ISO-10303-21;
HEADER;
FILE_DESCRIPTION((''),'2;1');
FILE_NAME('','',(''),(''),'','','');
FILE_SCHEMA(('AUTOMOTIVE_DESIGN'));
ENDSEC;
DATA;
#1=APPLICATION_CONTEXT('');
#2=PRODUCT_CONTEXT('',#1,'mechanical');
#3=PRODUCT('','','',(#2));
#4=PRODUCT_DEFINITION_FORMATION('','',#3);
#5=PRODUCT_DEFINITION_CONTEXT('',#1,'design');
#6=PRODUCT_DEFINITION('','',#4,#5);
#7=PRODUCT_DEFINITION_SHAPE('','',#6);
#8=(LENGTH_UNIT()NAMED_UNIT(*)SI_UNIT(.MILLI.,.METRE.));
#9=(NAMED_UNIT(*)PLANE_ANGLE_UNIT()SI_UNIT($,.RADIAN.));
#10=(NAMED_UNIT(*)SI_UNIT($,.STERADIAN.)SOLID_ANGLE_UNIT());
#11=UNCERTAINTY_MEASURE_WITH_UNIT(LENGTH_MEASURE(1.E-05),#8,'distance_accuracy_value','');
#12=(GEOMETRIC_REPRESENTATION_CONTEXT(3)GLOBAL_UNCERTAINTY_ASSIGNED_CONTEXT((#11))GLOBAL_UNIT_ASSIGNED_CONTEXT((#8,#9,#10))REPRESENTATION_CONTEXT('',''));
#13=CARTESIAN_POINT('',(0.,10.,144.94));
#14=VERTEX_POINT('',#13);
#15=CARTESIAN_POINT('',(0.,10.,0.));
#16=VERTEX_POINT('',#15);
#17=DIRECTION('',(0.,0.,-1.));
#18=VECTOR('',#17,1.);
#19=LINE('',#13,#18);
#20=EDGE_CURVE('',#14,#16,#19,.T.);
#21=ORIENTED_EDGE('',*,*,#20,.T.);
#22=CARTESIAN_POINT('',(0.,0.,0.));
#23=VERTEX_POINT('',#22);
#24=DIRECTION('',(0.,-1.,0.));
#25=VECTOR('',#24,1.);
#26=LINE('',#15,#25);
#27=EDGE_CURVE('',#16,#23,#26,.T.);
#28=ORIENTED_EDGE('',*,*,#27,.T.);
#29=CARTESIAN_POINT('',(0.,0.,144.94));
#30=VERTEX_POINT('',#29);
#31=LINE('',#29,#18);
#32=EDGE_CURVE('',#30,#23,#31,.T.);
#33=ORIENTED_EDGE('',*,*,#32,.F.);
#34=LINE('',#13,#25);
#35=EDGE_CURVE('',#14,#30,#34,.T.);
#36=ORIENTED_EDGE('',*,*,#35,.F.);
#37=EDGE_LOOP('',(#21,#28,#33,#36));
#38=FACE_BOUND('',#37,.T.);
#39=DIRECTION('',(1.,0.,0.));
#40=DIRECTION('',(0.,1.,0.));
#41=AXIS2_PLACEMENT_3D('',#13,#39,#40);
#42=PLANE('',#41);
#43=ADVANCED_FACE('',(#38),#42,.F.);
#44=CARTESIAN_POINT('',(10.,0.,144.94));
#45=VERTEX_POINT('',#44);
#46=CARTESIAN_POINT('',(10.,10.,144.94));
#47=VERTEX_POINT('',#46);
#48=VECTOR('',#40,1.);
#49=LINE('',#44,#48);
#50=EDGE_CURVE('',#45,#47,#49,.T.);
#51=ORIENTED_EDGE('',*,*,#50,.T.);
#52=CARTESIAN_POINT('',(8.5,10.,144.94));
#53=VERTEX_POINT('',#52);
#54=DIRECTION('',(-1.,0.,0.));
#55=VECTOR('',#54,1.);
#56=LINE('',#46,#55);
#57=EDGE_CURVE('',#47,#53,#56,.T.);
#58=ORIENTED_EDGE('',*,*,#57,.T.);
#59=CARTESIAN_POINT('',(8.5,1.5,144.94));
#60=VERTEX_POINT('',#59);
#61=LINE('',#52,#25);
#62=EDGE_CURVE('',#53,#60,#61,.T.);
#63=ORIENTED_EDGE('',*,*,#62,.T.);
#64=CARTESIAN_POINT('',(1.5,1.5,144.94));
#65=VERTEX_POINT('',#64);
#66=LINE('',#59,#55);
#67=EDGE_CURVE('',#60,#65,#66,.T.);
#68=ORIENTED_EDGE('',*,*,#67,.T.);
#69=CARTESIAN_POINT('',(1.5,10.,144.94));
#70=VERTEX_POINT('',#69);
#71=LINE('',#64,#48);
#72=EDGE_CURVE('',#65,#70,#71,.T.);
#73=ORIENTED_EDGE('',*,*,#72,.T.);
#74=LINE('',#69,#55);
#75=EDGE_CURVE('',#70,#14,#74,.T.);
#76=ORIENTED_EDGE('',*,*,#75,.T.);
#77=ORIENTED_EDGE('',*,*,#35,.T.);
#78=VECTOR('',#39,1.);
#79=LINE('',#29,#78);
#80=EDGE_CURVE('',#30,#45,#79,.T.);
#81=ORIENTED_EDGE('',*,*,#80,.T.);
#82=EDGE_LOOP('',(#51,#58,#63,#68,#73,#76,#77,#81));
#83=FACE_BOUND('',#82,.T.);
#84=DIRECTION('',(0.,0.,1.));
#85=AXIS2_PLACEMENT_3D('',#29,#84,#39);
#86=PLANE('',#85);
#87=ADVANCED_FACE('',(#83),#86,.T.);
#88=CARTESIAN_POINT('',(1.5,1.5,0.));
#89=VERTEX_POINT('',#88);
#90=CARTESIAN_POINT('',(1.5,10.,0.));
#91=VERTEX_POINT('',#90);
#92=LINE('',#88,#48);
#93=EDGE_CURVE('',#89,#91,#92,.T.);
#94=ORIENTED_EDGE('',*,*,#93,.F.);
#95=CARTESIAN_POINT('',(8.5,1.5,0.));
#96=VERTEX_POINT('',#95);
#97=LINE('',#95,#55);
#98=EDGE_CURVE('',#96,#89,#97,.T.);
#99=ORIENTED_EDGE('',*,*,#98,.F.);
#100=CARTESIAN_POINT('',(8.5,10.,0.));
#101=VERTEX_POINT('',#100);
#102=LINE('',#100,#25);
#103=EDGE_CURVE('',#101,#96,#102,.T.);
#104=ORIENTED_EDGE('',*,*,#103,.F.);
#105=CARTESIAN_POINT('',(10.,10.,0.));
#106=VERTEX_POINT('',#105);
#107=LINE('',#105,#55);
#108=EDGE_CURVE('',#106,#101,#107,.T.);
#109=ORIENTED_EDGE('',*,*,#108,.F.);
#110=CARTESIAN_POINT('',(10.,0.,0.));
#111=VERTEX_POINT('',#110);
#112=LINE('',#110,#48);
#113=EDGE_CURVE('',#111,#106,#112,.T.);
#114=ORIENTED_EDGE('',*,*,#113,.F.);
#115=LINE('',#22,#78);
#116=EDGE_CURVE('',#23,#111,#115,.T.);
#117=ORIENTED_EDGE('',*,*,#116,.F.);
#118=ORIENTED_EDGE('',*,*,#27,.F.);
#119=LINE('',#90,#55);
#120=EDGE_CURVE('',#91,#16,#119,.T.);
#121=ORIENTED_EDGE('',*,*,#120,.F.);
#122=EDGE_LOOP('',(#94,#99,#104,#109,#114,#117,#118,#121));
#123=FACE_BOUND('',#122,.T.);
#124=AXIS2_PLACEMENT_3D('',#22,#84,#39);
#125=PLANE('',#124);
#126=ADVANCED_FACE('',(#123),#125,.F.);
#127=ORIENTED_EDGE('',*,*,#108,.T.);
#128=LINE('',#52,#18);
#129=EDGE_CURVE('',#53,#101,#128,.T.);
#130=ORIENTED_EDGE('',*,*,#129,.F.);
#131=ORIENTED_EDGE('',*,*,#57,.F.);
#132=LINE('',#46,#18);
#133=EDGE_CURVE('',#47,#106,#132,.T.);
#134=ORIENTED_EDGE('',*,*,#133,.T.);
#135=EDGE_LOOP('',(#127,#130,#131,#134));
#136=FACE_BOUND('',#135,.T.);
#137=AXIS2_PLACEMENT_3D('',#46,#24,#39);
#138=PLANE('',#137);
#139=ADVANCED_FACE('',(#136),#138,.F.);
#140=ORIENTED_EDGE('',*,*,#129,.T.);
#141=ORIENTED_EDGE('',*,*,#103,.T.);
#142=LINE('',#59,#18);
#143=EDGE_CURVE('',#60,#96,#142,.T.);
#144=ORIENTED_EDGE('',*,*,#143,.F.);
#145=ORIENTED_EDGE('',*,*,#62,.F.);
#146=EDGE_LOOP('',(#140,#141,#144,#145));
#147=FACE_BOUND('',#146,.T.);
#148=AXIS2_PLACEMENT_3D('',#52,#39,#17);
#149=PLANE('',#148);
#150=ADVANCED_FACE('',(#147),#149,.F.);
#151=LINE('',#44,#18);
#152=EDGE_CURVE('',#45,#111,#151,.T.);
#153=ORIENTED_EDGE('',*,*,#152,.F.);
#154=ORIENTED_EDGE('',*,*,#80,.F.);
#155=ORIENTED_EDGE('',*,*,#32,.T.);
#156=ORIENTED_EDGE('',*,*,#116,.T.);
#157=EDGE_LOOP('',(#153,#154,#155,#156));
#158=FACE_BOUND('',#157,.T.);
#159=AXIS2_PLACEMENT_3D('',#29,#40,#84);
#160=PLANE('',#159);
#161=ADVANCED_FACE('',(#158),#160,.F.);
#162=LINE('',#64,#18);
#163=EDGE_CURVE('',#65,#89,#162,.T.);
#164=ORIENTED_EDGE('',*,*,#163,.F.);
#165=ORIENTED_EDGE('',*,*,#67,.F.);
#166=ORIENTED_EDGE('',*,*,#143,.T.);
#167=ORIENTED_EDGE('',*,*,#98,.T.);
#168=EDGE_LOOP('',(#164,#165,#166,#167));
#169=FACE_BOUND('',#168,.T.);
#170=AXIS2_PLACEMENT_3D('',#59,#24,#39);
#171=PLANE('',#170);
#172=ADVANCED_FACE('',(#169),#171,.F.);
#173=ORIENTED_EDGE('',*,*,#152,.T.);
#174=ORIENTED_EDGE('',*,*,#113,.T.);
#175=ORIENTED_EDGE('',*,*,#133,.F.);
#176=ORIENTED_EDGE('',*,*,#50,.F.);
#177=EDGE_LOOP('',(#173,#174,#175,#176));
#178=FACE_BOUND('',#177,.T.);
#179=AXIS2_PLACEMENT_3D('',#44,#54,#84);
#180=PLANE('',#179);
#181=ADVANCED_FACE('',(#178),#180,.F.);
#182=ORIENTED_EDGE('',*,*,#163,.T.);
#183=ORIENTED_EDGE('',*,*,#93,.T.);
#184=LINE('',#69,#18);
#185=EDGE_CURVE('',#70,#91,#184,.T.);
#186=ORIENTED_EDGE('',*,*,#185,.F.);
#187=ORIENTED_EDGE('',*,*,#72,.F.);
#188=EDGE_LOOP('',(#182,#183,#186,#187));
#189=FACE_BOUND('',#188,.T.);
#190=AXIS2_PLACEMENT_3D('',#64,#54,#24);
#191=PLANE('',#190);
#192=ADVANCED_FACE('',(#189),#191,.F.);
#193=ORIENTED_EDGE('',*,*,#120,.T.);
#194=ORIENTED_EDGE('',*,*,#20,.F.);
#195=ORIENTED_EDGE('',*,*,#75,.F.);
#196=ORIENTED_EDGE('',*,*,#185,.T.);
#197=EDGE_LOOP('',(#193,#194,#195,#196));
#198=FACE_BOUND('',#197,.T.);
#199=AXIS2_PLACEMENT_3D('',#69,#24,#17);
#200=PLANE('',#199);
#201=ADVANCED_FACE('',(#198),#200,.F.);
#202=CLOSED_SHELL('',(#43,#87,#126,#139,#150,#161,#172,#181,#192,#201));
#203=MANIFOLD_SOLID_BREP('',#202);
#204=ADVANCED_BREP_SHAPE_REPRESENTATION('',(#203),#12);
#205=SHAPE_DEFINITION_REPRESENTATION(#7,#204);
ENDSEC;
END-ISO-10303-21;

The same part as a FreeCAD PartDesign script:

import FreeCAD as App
import Part
import Sketcher


def add_polygon(sketch, points):
    """Adds a closed chain of lines whose ends are joined by coincident constraints."""
    first, n = sketch.GeometryCount, len(points)
    for a, b in zip(points, points[1:] + points[:1]):
        sketch.addGeometry(Part.LineSegment(App.Vector(*a, 0), App.Vector(*b, 0)), False)
    for i in range(n):
        sketch.addConstraint(Sketcher.Constraint("Coincident", first + i, 2, first + (i + 1) % n, 1))

doc = App.newDocument("Part")
params = doc.addObject("Spreadsheet::Sheet", "Params")
for row, (alias, value) in enumerate([
    ("sketch1_width", "10 mm"),
    ("sketch1_width2", "7 mm"),
    ("sketch1_height", "8.5 mm"),
    ("pad1_length", "144.94 mm"),
], start=1):
    params.set(f"A{row}", alias)
    params.set(f"B{row}", "=" + value)
    params.setAlias(f"B{row}", alias)

body = doc.addObject("PartDesign::Body", "Body")

# Sketch on XY plane
sketch1 = body.newObject("Sketcher::SketchObject", "Sketch")
sketch1.AttachmentSupport = (doc.getObject("XY_Plane"), [""])
sketch1.MapMode = "FlatFace"
add_polygon(sketch1, [(0, 0), (10, 0), (10, 10), (8.5, 10), (8.5, 1.5), (1.5, 1.5), (1.5, 10), (0, 10)])  # lines 0-7
sketch1.addConstraint([
    Sketcher.Constraint("Horizontal", 0),
    Sketcher.Constraint("Vertical", 1),
    Sketcher.Constraint("Horizontal", 2),
    Sketcher.Constraint("Vertical", 3),
    Sketcher.Constraint("Horizontal", 4),
    Sketcher.Constraint("Vertical", 5),
    Sketcher.Constraint("Horizontal", 6),
    Sketcher.Constraint("Vertical", 7),
    Sketcher.Constraint("Coincident", 7, 2, -1, 1),
    Sketcher.Constraint("Horizontal", 2, 2, 5, 2),
    Sketcher.Constraint("Equal", 2, 6),
    Sketcher.Constraint("Equal", 0, 1),
    Sketcher.Constraint("DistanceX", 0, 1, 0, 2, 10.0),
    Sketcher.Constraint("DistanceX", 4, 2, 4, 1, 7.0),
    Sketcher.Constraint("DistanceY", 3, 2, 3, 1, 8.5),
])
sketch1.setExpression("Constraints[20]", "Params.sketch1_width")
sketch1.setExpression("Constraints[21]", "Params.sketch1_width2")
sketch1.setExpression("Constraints[22]", "Params.sketch1_height")
pad1 = body.newObject("PartDesign::Pad", "Pad")
pad1.Profile = sketch1
pad1.setExpression("Length", "Params.pad1_length")

doc.recompute()
